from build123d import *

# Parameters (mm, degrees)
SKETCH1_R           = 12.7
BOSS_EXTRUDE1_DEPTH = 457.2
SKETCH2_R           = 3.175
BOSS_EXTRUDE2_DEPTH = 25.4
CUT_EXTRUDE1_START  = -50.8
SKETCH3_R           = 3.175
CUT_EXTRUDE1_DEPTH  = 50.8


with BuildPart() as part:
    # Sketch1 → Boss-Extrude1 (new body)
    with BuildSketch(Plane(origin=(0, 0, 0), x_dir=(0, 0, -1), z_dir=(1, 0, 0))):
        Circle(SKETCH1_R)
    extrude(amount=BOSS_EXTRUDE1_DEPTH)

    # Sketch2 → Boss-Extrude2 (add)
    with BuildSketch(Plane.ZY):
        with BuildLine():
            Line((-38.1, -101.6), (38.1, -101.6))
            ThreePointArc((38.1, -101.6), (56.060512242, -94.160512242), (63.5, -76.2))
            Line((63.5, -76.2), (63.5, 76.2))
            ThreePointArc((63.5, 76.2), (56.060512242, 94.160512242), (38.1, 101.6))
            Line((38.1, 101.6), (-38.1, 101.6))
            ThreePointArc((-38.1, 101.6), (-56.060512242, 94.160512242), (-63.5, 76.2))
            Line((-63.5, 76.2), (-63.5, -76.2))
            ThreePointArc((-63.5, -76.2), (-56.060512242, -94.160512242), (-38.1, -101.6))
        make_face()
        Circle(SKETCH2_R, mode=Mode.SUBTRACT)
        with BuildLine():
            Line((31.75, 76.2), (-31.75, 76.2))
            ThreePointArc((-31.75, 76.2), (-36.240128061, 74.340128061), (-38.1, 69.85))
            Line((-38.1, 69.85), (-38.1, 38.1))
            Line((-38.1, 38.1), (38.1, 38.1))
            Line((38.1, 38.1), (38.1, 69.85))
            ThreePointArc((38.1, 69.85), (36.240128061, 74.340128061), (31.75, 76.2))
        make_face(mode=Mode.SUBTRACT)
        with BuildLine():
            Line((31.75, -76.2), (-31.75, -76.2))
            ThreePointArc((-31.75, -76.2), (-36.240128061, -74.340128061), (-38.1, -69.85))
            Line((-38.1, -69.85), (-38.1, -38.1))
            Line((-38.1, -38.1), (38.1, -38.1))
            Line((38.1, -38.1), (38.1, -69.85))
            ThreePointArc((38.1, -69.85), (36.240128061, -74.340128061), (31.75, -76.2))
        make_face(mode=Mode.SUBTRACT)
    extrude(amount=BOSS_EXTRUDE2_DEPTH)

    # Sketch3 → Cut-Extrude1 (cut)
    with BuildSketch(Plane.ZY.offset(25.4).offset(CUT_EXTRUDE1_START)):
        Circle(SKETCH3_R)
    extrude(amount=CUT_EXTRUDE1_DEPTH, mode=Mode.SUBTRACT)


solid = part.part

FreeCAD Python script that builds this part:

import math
import FreeCAD as App
import Part
import Sketcher
from FreeCAD import Vector
Q = App.Units.Quantity

doc = App.newDocument("Part")
body = doc.addObject("PartDesign::Body", "Body")

sketch1 = doc.addObject("Sketcher::SketchObject", "Sketch")
body.addObject(sketch1)
sketch1.AttachmentSupport = (doc.YZ_Plane, [""])
sketch1.MapMode = "FlatFace"
sketch1.addGeometry(Part.Circle(Vector(0, 0, 0), Vector(0, 0, 1), 13), False)
sketch1.addConstraint(Sketcher.Constraint("Coincident", 0, 3, -1, 1))
sketch1.addConstraint(Sketcher.Constraint("Diameter", 0, Q("1 in")))
pad1 = doc.addObject("PartDesign::Pad", "Pad")
body.addObject(pad1)
pad1.Profile = sketch1
pad1.Length = Q("18 in")

sketch2 = doc.addObject("Sketcher::SketchObject", "Sketch001")
body.addObject(sketch2)
sketch2.AttachmentSupport = (doc.YZ_Plane, [""])
sketch2.MapMode = "FlatFace"
sketch2.addGeometry(Part.LineSegment(Vector(-101.6, -38.1, 0), Vector(-101.6, 38.1, 0)), False)
sketch2.addGeometry(Part.ArcOfCircle(Part.Circle(Vector(-76.2, 38.1, 0), Vector(0, 0, 1), 25.4), math.radians(90), math.radians(180)), False)
sketch2.addGeometry(Part.LineSegment(Vector(-76.2, 63.5, 0), Vector(76.2, 63.5, 0)), False)
sketch2.addGeometry(Part.ArcOfCircle(Part.Circle(Vector(76.2, 38.1, 0), Vector(0, 0, 1), 25.4), math.radians(0), math.radians(90)), False)
sketch2.addGeometry(Part.LineSegment(Vector(101.6, 38.1, 0), Vector(101.6, -38.1, 0)), False)
sketch2.addGeometry(Part.ArcOfCircle(Part.Circle(Vector(76.2, -38.1, 0), Vector(0, 0, 1), 25.4), math.radians(-90), math.radians(0)), False)
sketch2.addGeometry(Part.LineSegment(Vector(76.2, -63.5, 0), Vector(-76.2, -63.5, 0)), False)
sketch2.addGeometry(Part.ArcOfCircle(Part.Circle(Vector(-76.2, -38.1, 0), Vector(0, 0, 1), 25.4), math.radians(180), math.radians(270)), False)
sketch2.addGeometry(Part.ArcOfCircle(Part.Circle(Vector(-69.9, 31.8, 0), Vector(0, 0, 1), 6.3), math.radians(90), math.radians(180)), False)
sketch2.addGeometry(Part.LineSegment(Vector(-76.2, 31.8, 0), Vector(-76.2, -31.8, 0)), False)
sketch2.addGeometry(Part.ArcOfCircle(Part.Circle(Vector(-69.9, -31.8, 0), Vector(0, 0, 1), 6.3), math.radians(180), math.radians(270)), False)
sketch2.addGeometry(Part.LineSegment(Vector(-69.8, -38.1, 0), Vector(-38.1, -38.1, 0)), False)
sketch2.addGeometry(Part.LineSegment(Vector(-38.1, -38.1, 0), Vector(-38.1, 38.1, 0)), False)
sketch2.addGeometry(Part.LineSegment(Vector(-38.1, 38.1, 0), Vector(-69.8, 38.1, 0)), False)
sketch2.addGeometry(Part.Circle(Vector(0, 0, 0), Vector(0, 0, 1), 3.2), False)
sketch2.addGeometry(Part.LineSegment(Vector(76.2, -31.8, 0), Vector(76.2, 31.8, 0)), False)
sketch2.addGeometry(Part.ArcOfCircle(Part.Circle(Vector(69.9, 31.8, 0), Vector(0, 0, 1), 6.3), math.radians(0), math.radians(90)), False)
sketch2.addGeometry(Part.LineSegment(Vector(69.8, 38.1, 0), Vector(38.1, 38.1, 0)), False)
sketch2.addGeometry(Part.LineSegment(Vector(38.1, 38.1, 0), Vector(38.1, -38.1, 0)), False)
sketch2.addGeometry(Part.LineSegment(Vector(38.1, -38.1, 0), Vector(69.8, -38.1, 0)), False)
sketch2.addGeometry(Part.ArcOfCircle(Part.Circle(Vector(69.9, -31.8, 0), Vector(0, 0, 1), 6.3), math.radians(-90), math.radians(0)), False)
sketch2.addConstraint(Sketcher.Constraint("Tangent", 0, 2, 1, 2))
sketch2.addConstraint(Sketcher.Constraint("Tangent", 1, 1, 2, 1))
sketch2.addConstraint(Sketcher.Constraint("Tangent", 2, 2, 3, 2))
sketch2.addConstraint(Sketcher.Constraint("Tangent", 3, 1, 4, 1))
sketch2.addConstraint(Sketcher.Constraint("Tangent", 4, 2, 5, 2))
sketch2.addConstraint(Sketcher.Constraint("Tangent", 5, 1, 6, 1))
sketch2.addConstraint(Sketcher.Constraint("Tangent", 6, 2, 7, 2))
sketch2.addConstraint(Sketcher.Constraint("Tangent", 7, 1, 0, 1))
sketch2.addConstraint(Sketcher.Constraint("Tangent", 8, 2, 9, 1))
sketch2.addConstraint(Sketcher.Constraint("Tangent", 9, 2, 10, 1))
sketch2.addConstraint(Sketcher.Constraint("Tangent", 10, 2, 11, 1))
sketch2.addConstraint(Sketcher.Constraint("Coincident", 11, 2, 12, 1))
sketch2.addConstraint(Sketcher.Constraint("Coincident", 12, 2, 13, 1))
sketch2.addConstraint(Sketcher.Constraint("Tangent", 13, 2, 8, 1))
sketch2.addConstraint(Sketcher.Constraint("Tangent", 15, 2, 16, 1))
sketch2.addConstraint(Sketcher.Constraint("Tangent", 16, 2, 17, 1))
sketch2.addConstraint(Sketcher.Constraint("Coincident", 17, 2, 18, 1))
sketch2.addConstraint(Sketcher.Constraint("Coincident", 18, 2, 19, 1))
sketch2.addConstraint(Sketcher.Constraint("Tangent", 19, 2, 20, 1))
sketch2.addConstraint(Sketcher.Constraint("Tangent", 20, 2, 15, 1))
sketch2.addConstraint(Sketcher.Constraint("Vertical", 0))
sketch2.addConstraint(Sketcher.Constraint("Horizontal", 2))
sketch2.addConstraint(Sketcher.Constraint("Vertical", 4))
sketch2.addConstraint(Sketcher.Constraint("Horizontal", 6))
sketch2.addConstraint(Sketcher.Constraint("Vertical", 9))
sketch2.addConstraint(Sketcher.Constraint("Horizontal", 11))
sketch2.addConstraint(Sketcher.Constraint("Vertical", 12))
sketch2.addConstraint(Sketcher.Constraint("Horizontal", 13))
sketch2.addConstraint(Sketcher.Constraint("Vertical", 15))
sketch2.addConstraint(Sketcher.Constraint("Horizontal", 17))
sketch2.addConstraint(Sketcher.Constraint("Vertical", 18))
sketch2.addConstraint(Sketcher.Constraint("Horizontal", 19))
sketch2.addConstraint(Sketcher.Constraint("Coincident", 14, 3, -1, 1))
sketch2.addConstraint(Sketcher.Constraint("Equal", 1, 3))
sketch2.addConstraint(Sketcher.Constraint("Equal", 3, 5))
sketch2.addConstraint(Sketcher.Constraint("Equal", 5, 7))
sketch2.addConstraint(Sketcher.Constraint("Equal", 8, 10))
sketch2.addConstraint(Sketcher.Constraint("Equal", 10, 16))
sketch2.addConstraint(Sketcher.Constraint("Equal", 16, 20))
sketch2.addConstraint(Sketcher.Constraint("Symmetric", 1, 3, 5, 3, -1, 1))
sketch2.addConstraint(Sketcher.Constraint("Symmetric", 10, 3, 16, 3, -1, 1))
sketch2.addConstraint(Sketcher.Constraint("Symmetric", 12, 2, 18, 2, -1, 1))
sketch2.addConstraint(Sketcher.Constraint("Horizontal", 8, 3, 16, 3))
sketch2.addConstraint(Sketcher.Constraint("Horizontal", 7, 1, 10, 2))
sketch2.addConstraint(Sketcher.Constraint("Vertical", 6, 2, 8, 2))
sketch2.addConstraint(Sketcher.Constraint("Radius", 1, Q("1 in")))
sketch2.addConstraint(Sketcher.Constraint("Diameter", 14, Q("0.25 in")))
sketch2.addConstraint(Sketcher.Constraint("DistanceX", 2, 1, 2, 2, Q("6 in")))
sketch2.addConstraint(Sketcher.Constraint("DistanceY", 0, 1, 0, 2, Q("3 in")))
sketch2.addConstraint(Sketcher.Constraint("Radius", 8, Q("0.25 in")))
sketch2.addConstraint(Sketcher.Constraint("DistanceX", 11, 1, 11, 2, Q("1.25 in")))
pad2 = doc.addObject("PartDesign::Pad", "Pad001")
body.addObject(pad2)
pad2.Profile = sketch2
pad2.Length = Q("1 in")
pad2.Reversed = True

sketch3 = doc.addObject("Sketcher::SketchObject", "Sketch002")
body.addObject(sketch3)
sketch3.AttachmentSupport = (doc.YZ_Plane, [""])
sketch3.MapMode = "FlatFace"
sketch3.AttachmentOffset = App.Placement(Vector(0, 0, 1 * 25.4), App.Rotation())
sketch3.addGeometry(Part.Circle(Vector(0, 0, 0), Vector(0, 0, 1), 3.2), False)
sketch3.addConstraint(Sketcher.Constraint("Coincident", 0, 3, -1, 1))
sketch3.addConstraint(Sketcher.Constraint("Diameter", 0, Q("0.25 in")))
pocket1 = doc.addObject("PartDesign::Pocket", "Pocket")
body.addObject(pocket1)
pocket1.Profile = sketch3
pocket1.Length = Q("2 in")

doc.recompute()
